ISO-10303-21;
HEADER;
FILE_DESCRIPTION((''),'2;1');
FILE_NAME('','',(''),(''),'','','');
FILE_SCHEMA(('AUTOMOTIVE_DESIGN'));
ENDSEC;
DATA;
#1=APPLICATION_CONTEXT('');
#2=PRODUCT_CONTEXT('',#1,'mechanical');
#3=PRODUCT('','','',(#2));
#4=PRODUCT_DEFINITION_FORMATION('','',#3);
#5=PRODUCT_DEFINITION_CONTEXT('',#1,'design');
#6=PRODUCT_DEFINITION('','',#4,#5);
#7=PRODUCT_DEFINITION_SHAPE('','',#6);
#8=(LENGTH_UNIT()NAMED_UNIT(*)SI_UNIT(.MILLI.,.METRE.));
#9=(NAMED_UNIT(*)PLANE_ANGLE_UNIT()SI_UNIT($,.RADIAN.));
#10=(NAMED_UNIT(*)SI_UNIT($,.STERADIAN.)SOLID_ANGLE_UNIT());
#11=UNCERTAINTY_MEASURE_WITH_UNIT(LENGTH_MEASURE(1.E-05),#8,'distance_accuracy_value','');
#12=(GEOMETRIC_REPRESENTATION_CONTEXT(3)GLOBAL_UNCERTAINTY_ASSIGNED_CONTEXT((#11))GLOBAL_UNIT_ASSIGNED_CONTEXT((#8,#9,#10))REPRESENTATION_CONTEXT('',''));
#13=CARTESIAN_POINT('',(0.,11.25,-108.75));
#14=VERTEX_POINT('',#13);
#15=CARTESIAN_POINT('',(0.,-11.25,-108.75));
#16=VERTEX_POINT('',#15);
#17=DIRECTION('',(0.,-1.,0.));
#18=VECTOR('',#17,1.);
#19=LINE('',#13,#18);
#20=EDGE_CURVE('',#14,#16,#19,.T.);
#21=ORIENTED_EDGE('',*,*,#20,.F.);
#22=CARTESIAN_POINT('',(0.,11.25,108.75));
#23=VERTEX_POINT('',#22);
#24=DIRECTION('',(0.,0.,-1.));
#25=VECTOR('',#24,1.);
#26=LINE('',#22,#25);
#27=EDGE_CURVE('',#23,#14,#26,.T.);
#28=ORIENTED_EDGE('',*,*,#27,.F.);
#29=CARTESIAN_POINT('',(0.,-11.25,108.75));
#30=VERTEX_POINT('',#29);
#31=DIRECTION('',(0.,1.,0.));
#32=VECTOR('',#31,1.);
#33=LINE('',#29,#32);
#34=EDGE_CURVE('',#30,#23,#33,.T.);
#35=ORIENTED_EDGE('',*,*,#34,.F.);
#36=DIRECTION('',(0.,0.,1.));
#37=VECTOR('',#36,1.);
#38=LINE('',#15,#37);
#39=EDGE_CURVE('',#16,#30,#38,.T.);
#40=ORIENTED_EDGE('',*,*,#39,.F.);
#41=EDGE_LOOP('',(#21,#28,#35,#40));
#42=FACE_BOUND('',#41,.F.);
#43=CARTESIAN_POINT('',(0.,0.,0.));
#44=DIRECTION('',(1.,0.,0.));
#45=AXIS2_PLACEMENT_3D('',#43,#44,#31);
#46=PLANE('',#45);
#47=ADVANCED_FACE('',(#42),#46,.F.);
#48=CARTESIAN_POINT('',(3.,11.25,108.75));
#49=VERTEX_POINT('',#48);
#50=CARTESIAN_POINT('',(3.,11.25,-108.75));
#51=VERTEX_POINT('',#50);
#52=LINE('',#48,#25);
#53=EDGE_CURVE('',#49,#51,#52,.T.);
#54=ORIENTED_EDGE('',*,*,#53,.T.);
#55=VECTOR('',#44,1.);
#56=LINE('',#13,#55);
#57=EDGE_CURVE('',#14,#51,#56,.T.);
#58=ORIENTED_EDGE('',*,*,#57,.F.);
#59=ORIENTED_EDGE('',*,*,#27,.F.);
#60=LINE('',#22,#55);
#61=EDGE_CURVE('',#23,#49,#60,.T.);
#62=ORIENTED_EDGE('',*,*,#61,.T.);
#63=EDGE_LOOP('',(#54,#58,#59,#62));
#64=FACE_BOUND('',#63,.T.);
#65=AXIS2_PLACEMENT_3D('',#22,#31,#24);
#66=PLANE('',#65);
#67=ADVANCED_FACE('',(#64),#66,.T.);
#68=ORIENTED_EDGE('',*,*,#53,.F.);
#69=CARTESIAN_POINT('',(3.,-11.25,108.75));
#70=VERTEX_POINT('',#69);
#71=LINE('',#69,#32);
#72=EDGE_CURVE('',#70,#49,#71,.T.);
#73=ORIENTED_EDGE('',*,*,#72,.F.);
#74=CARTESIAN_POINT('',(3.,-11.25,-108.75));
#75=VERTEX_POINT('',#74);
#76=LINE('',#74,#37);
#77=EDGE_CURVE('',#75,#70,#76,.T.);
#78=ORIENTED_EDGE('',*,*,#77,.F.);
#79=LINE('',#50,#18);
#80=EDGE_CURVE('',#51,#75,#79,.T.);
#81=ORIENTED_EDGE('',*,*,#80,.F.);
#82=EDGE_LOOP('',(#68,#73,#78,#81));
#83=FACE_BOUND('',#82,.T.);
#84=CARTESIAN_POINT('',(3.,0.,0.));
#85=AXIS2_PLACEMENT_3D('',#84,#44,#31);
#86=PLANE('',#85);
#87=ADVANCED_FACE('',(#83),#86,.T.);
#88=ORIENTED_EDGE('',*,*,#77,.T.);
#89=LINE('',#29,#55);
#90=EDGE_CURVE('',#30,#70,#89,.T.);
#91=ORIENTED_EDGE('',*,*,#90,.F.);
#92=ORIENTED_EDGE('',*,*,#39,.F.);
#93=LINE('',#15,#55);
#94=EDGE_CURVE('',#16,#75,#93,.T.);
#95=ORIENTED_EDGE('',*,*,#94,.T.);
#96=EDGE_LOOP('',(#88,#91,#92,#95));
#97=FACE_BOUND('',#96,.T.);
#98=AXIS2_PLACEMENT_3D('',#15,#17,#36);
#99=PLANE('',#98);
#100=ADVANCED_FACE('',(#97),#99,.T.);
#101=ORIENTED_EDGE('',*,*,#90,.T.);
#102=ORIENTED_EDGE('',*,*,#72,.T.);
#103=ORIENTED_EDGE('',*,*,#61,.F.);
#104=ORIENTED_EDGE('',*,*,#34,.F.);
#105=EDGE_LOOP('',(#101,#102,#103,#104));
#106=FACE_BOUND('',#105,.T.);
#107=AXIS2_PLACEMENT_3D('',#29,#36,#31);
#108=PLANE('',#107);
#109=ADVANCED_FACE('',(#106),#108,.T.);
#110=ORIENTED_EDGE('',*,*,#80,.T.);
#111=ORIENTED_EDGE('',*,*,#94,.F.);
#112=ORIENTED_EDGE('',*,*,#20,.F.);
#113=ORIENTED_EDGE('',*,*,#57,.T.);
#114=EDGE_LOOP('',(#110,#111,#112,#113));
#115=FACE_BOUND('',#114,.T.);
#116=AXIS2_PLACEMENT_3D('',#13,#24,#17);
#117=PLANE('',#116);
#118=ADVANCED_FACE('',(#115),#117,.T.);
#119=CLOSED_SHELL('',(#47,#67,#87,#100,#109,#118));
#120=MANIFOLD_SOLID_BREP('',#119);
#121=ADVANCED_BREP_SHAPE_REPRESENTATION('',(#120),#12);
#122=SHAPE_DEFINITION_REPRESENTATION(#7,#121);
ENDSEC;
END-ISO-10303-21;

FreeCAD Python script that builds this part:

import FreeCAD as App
import Part
import Sketcher
Q = App.Units.Quantity

doc = App.newDocument("Part")
body = doc.addObject("PartDesign::Body", "Body")

# Sketch on YZ plane
sketch1 = body.newObject("Sketcher::SketchObject", "Sketch")
sketch1.AttachmentSupport = (doc.getObject("YZ_Plane"), [""])
sketch1.MapMode = "FlatFace"
sketch1.addGeometry(Part.LineSegment(App.Vector(11, 109, 0), App.Vector(-11, 109, 0)), False)
sketch1.addGeometry(Part.LineSegment(App.Vector(-11, 109, 0), App.Vector(-11, -109, 0)), False)
sketch1.addGeometry(Part.LineSegment(App.Vector(-11, -109, 0), App.Vector(11, -109, 0)), False)
sketch1.addGeometry(Part.LineSegment(App.Vector(11, -109, 0), App.Vector(11, 109, 0)), False)
sketch1.addConstraint(Sketcher.Constraint("Coincident", 0, 2, 1, 1))
sketch1.addConstraint(Sketcher.Constraint("Coincident", 1, 2, 2, 1))
sketch1.addConstraint(Sketcher.Constraint("Coincident", 2, 2, 3, 1))
sketch1.addConstraint(Sketcher.Constraint("Coincident", 3, 2, 0, 1))
sketch1.addConstraint(Sketcher.Constraint("Horizontal", 0))
sketch1.addConstraint(Sketcher.Constraint("Vertical", 1))
sketch1.addConstraint(Sketcher.Constraint("Horizontal", 2))
sketch1.addConstraint(Sketcher.Constraint("Vertical", 3))
sketch1.addConstraint(Sketcher.Constraint("Symmetric", 0, 2, 2, 2, -1, 1))
sketch1.addConstraint(Sketcher.Constraint("DistanceX", 0, 2, 0, 1, Q("22.5 mm")))
sketch1.addConstraint(Sketcher.Constraint("DistanceY", 1, 2, 1, 1, Q("217.5 mm")))
pad1 = body.newObject("PartDesign::Pad", "Pad")
pad1.Profile = sketch1
pad1.Length = 3

doc.recompute()
